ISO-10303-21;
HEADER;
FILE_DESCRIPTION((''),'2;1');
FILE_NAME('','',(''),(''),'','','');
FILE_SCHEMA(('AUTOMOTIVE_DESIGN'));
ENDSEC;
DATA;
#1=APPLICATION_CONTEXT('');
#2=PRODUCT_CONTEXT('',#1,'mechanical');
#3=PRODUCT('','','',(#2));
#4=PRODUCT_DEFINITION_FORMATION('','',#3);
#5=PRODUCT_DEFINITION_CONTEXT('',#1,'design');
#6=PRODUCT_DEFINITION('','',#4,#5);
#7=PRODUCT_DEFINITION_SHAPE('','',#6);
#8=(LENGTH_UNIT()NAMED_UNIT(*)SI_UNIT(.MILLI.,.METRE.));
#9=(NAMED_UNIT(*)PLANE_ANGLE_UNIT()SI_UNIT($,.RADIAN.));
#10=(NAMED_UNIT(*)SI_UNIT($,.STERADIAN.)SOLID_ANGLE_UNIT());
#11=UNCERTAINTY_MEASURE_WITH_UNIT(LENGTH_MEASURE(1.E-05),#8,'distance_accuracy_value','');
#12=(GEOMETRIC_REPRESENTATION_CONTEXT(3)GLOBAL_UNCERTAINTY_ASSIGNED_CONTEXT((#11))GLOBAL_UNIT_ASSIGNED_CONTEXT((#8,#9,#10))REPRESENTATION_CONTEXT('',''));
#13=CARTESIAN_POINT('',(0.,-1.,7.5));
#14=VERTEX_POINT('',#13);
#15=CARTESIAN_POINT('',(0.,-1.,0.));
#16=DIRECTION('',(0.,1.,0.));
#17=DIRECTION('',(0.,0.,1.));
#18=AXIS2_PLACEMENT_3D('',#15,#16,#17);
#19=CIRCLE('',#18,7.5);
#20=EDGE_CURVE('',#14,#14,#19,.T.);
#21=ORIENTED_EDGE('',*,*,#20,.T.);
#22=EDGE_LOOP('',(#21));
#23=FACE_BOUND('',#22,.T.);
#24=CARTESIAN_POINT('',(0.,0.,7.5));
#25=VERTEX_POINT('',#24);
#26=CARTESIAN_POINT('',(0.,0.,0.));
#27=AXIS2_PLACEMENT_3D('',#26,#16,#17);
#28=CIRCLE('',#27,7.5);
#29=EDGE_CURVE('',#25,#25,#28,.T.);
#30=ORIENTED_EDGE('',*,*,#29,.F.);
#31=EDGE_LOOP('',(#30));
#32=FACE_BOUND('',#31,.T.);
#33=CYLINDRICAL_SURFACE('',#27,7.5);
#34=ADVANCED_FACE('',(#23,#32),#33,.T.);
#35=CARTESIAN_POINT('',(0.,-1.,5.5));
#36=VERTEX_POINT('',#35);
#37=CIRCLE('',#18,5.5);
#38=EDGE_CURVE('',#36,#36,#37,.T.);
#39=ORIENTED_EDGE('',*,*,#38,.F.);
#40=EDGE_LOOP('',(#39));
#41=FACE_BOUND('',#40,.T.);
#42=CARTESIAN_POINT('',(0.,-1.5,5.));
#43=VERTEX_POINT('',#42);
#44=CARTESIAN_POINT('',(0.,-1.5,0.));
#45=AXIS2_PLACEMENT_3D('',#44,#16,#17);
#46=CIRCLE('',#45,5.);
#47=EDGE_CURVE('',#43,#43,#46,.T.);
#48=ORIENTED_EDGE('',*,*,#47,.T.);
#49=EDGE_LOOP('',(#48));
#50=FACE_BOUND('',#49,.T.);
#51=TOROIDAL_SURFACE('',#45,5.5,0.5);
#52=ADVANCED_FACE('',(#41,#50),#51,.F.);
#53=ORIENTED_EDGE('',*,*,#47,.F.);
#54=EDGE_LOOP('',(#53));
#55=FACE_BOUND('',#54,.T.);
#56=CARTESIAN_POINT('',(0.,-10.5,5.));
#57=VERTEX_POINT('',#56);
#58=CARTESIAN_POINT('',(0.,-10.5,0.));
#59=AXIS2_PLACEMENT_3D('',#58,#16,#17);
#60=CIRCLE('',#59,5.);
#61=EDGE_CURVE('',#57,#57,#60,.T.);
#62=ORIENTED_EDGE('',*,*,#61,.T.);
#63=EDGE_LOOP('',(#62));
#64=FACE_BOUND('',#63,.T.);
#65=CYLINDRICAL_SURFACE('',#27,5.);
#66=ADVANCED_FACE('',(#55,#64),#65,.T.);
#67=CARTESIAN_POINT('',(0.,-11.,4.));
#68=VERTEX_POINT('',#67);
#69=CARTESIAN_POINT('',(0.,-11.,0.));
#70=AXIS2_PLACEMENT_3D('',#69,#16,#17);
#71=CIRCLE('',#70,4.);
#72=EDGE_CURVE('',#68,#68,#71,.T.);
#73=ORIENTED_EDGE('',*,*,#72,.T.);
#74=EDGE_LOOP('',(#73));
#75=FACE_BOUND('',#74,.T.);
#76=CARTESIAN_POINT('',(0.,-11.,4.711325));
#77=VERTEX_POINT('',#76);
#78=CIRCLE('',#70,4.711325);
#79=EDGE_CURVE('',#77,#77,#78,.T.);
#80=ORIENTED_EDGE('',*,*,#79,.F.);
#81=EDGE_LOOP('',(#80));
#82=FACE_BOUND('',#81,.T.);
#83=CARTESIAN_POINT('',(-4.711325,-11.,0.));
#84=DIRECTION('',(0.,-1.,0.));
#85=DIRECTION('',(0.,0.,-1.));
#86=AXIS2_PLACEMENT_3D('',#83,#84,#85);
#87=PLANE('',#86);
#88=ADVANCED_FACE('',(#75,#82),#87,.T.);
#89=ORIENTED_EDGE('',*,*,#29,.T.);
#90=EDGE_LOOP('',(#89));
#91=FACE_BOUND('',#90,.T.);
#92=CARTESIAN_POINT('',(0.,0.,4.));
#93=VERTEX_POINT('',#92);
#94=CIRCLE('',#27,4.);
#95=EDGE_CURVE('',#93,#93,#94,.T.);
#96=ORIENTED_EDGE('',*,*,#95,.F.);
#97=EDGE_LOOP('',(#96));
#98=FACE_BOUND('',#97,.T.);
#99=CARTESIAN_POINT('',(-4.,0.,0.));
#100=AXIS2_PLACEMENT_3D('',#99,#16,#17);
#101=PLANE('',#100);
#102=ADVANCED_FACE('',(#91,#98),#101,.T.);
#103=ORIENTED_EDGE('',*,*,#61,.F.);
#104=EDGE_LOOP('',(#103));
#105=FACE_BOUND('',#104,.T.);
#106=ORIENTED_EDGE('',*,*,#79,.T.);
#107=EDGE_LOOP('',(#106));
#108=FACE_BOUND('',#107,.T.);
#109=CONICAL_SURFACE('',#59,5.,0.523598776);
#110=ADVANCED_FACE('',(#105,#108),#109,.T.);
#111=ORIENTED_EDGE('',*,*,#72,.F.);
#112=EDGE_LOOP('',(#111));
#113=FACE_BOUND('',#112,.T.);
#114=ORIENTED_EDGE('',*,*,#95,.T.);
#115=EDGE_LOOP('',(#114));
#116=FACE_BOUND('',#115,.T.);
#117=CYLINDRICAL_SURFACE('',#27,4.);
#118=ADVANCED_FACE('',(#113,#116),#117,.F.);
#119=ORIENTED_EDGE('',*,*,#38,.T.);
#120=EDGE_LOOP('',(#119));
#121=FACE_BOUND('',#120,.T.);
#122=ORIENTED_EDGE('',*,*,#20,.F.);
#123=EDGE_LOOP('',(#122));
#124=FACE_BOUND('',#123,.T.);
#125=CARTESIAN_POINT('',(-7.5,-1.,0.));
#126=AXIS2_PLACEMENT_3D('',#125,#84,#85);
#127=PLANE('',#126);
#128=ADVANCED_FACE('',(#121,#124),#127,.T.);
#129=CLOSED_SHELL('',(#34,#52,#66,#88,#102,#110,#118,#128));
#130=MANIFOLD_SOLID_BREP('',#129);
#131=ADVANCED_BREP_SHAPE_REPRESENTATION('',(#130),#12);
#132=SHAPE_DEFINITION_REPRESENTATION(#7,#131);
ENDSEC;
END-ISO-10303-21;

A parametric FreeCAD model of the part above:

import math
import FreeCAD as App
import Part
import Sketcher

V = App.Vector
Q = App.Units.Quantity

doc = App.newDocument("Part")
body = doc.addObject("PartDesign::Body", "Body")

# Sketch on XY plane
sketch1 = body.newObject("Sketcher::SketchObject", "Sketch")
sketch1.AttachmentSupport = (doc.getObject("XY_Plane"), [""])
sketch1.MapMode = "FlatFace"
sketch1.addGeometry([
    Part.LineSegment(V(-7.5, 0, 0), V(-7.5, -1, 0)),  # 0
    Part.LineSegment(V(-7.5, -1, 0), V(-5.5, -1, 0)),  # 1
    Part.ArcOfCircle(Part.Circle(V(-5.5, -1.5, 0), V(0, 0, 1), 0.5), math.radians(0), math.radians(90)),  # 2
    Part.LineSegment(V(-5, -1.5, 0), V(-5, -10.5, 0)),  # 3
    Part.LineSegment(V(-5, -10.5, 0), V(-4.71, -11, 0)),  # 4
    Part.LineSegment(V(-4.71, -11, 0), V(-4, -11, 0)),  # 5
    Part.LineSegment(V(-4, -11, 0), V(-4, 0, 0)),  # 6
    Part.LineSegment(V(-4, 0, 0), V(-7.5, 0, 0)),  # 7
], False)
sketch1.addConstraint([
    Sketcher.Constraint("Coincident", 0, 2, 1, 1),
    Sketcher.Constraint("Tangent", 1, 2, 2, 2),
    Sketcher.Constraint("Tangent", 2, 1, 3, 1),
    Sketcher.Constraint("Coincident", 3, 2, 4, 1),
    Sketcher.Constraint("Coincident", 4, 2, 5, 1),
    Sketcher.Constraint("Coincident", 5, 2, 6, 1),
    Sketcher.Constraint("Coincident", 6, 2, 7, 1),
    Sketcher.Constraint("Coincident", 7, 2, 0, 1),
    Sketcher.Constraint("Vertical", 0),
    Sketcher.Constraint("Horizontal", 1),
    Sketcher.Constraint("Vertical", 3),
    Sketcher.Constraint("Horizontal", 5),
    Sketcher.Constraint("Vertical", 6),
    Sketcher.Constraint("Horizontal", 7),
    Sketcher.Constraint("PointOnObject", 6, 2, -1),
    Sketcher.Constraint("Radius", 2, Q("0.5 mm")),
    Sketcher.Constraint("DistanceX", 1, 1, 1, 2, Q("2 mm")),
    Sketcher.Constraint("DistanceY", 0, 2, 0, 1, Q("1 mm")),
    Sketcher.Constraint("DistanceY", 3, 2, 3, 1, Q("9 mm")),
    Sketcher.Constraint("DistanceY", 6, 1, 6, 2, Q("11 mm")),
    Sketcher.Constraint("Angle", 4, Q("-60 deg")),
    Sketcher.Constraint("DistanceX", 7, 2, 7, 1, Q("3.5 mm")),
    Sketcher.Constraint("DistanceX", 2, 1, -1, 1, Q("5 mm")),
])
revolution = body.newObject("PartDesign::Revolution", "Revolution")
revolution.Profile = sketch1
revolution.ReferenceAxis = (sketch1, ["V_Axis"])
revolution.Angle = 360

doc.recompute()
